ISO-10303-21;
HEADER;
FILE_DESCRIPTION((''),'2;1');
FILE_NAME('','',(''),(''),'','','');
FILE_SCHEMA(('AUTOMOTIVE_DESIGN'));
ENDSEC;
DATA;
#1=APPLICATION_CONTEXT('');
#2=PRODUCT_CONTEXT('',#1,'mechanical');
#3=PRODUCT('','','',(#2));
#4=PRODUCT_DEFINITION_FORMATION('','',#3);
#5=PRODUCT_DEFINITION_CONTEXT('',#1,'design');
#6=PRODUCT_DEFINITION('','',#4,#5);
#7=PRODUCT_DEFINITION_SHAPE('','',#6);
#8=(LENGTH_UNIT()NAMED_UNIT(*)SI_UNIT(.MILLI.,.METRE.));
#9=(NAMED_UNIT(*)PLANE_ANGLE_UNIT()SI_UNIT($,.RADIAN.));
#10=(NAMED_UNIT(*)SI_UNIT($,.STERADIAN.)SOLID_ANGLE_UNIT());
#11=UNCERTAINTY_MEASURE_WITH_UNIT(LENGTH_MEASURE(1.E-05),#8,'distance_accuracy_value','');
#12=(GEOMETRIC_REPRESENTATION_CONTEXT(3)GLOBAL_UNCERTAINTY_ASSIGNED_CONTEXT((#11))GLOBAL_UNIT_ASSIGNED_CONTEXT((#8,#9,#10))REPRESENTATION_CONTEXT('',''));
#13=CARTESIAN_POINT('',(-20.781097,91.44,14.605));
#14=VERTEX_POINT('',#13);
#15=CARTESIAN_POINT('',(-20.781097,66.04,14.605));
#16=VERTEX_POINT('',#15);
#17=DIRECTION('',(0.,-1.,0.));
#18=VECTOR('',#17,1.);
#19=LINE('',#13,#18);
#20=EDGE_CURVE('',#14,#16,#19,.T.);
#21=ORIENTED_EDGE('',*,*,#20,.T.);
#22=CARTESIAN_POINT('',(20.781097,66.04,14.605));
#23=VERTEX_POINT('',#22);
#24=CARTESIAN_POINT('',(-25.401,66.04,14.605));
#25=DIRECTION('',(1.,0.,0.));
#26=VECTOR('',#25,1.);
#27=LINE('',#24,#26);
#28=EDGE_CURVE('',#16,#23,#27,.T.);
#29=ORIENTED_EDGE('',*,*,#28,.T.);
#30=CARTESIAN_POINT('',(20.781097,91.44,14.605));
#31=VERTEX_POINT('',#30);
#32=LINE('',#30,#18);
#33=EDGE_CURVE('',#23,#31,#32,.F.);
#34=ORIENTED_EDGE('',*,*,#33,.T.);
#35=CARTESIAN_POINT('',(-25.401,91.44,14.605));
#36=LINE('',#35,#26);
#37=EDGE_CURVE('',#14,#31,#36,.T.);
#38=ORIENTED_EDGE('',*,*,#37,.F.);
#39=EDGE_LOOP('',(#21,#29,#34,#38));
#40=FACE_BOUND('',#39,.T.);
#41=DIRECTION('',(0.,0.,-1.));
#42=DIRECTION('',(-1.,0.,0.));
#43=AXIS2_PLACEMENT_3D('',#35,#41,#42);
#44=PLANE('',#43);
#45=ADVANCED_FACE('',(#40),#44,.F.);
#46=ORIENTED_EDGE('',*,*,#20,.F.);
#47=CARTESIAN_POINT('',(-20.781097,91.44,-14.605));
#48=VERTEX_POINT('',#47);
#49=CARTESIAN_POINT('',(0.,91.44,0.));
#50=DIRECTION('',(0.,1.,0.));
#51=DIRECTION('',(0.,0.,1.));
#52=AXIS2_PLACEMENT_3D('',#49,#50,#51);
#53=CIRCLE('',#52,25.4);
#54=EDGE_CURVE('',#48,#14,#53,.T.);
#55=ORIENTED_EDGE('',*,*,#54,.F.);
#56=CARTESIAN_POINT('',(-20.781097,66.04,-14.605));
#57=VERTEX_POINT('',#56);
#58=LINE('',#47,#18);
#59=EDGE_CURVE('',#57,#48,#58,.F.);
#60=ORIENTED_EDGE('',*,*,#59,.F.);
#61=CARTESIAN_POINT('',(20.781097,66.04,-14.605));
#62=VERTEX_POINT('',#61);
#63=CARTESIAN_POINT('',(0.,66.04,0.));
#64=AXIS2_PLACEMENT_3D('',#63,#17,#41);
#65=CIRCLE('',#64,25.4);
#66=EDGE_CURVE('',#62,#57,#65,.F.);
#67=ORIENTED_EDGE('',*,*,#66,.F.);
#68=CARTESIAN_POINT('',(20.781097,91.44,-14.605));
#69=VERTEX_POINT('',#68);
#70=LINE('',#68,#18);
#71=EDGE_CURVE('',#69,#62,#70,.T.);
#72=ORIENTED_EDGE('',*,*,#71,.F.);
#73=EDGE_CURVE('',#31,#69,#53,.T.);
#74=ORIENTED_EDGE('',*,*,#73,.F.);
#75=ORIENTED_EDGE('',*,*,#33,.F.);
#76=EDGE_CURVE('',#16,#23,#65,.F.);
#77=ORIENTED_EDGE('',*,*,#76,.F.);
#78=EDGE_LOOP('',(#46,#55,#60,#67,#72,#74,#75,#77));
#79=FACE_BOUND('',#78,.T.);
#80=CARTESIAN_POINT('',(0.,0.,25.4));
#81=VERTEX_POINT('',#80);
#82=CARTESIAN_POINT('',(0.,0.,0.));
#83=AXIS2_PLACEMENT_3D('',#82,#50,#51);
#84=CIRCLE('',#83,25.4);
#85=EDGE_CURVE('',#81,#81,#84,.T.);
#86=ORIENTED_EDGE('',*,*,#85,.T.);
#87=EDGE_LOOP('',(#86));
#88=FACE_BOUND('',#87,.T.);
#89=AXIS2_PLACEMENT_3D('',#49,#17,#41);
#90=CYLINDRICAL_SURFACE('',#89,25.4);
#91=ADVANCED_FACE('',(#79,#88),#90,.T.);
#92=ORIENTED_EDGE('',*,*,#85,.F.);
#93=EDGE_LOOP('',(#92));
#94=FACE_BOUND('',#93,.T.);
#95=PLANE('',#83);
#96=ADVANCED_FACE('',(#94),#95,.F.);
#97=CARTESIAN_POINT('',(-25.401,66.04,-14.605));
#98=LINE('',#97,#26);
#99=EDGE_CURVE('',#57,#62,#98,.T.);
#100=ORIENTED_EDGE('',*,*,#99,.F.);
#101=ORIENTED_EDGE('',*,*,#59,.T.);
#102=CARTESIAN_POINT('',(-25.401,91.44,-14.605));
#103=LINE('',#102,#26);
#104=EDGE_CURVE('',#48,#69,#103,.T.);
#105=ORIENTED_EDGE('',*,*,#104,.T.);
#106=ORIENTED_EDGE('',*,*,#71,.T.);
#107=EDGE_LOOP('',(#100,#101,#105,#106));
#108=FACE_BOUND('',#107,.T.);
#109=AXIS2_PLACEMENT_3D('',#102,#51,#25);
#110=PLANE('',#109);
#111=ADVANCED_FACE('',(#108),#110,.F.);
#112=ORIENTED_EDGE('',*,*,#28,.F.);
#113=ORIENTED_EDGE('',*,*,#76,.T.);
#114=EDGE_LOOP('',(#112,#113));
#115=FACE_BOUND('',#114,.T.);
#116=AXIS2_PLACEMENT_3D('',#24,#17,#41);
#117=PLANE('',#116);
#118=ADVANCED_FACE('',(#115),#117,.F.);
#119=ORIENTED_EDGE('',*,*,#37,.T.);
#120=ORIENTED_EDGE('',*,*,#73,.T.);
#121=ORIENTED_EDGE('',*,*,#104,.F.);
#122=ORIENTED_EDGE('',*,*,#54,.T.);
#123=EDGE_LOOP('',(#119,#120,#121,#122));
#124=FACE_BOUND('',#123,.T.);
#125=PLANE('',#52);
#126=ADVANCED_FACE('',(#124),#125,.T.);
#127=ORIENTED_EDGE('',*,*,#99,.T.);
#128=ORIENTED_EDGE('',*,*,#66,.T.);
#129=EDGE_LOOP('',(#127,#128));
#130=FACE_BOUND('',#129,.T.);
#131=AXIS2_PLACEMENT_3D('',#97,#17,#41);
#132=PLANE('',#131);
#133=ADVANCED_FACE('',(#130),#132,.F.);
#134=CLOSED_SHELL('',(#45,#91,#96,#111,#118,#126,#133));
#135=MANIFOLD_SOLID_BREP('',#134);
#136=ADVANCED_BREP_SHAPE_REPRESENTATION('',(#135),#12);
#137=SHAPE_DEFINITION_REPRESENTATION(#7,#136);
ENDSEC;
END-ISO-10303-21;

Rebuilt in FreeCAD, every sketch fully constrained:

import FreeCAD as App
import Part
import Sketcher
Q = App.Units.Quantity

doc = App.newDocument("Part")
body = doc.addObject("PartDesign::Body", "Body")

sketch1 = doc.addObject("Sketcher::SketchObject", "Sketch")
body.addObject(sketch1)
sketch1.AttachmentSupport = (doc.XZ_Plane, [""])
sketch1.MapMode = "FlatFace"
sketch1.addGeometry(Part.Circle(App.Vector(0, 0, 0), App.Vector(0, 0, 1), 25), False)
sketch1.addConstraint([
    Sketcher.Constraint("Coincident", 0, 3, -1, 1),
    Sketcher.Constraint("Diameter", 0, Q("2 in")),
])
pad1 = doc.addObject("PartDesign::Pad", "Pad")
body.addObject(pad1)
pad1.Profile = sketch1
pad1.Length = Q("3.6 in")
pad1.Reversed = True

sketch2 = doc.addObject("Sketcher::SketchObject", "Sketch001")
body.addObject(sketch2)
sketch2.AttachmentSupport = (doc.YZ_Plane, [""])
sketch2.MapMode = "FlatFace"
sketch2.AttachmentOffset = App.Placement(App.Vector(0, 0, 1 * 25.4), App.Rotation())
sketch2.addGeometry([
    Part.LineSegment(App.Vector(91, 25, 0), App.Vector(66, 25, 0)),
    Part.LineSegment(App.Vector(66, 25, 0), App.Vector(66, 15, 0)),
    Part.LineSegment(App.Vector(66, 15, 0), App.Vector(91, 15, 0)),
    Part.LineSegment(App.Vector(91, 15, 0), App.Vector(91, 25, 0)),
], False)
sketch2.addConstraint([
    Sketcher.Constraint("Coincident", 0, 2, 1, 1),
    Sketcher.Constraint("Coincident", 1, 2, 2, 1),
    Sketcher.Constraint("Coincident", 2, 2, 3, 1),
    Sketcher.Constraint("Coincident", 3, 2, 0, 1),
    Sketcher.Constraint("Horizontal", 0),
    Sketcher.Constraint("Vertical", 1),
    Sketcher.Constraint("Horizontal", 2),
    Sketcher.Constraint("Vertical", 3),
    Sketcher.Constraint("DistanceX", 0, 2, 0, 1, Q("1 in")),
    Sketcher.Constraint("DistanceY", -1, 1, 0, 2, Q("1 in")),
    Sketcher.Constraint("DistanceX", -1, 1, 0, 2, Q("2.6 in")),
    Sketcher.Constraint("DistanceY", 1, 2, 1, 1, Q("0.425 in")),
])
pocket1 = doc.addObject("PartDesign::Pocket", "Pocket")
body.addObject(pocket1)
pocket1.Profile = sketch2
pocket1.Type = "UpToFirst"

sketch3 = doc.addObject("Sketcher::SketchObject", "Sketch002")
body.addObject(sketch3)
sketch3.AttachmentSupport = (doc.YZ_Plane, [""])
sketch3.MapMode = "FlatFace"
sketch3.AttachmentOffset = App.Placement(App.Vector(0, 0, 1 * 25.4), App.Rotation())
sketch3.addGeometry([
    Part.LineSegment(App.Vector(91, -15, 0), App.Vector(66, -15, 0)),
    Part.LineSegment(App.Vector(66, -15, 0), App.Vector(66, -25, 0)),
    Part.LineSegment(App.Vector(66, -25, 0), App.Vector(91, -25, 0)),
    Part.LineSegment(App.Vector(91, -25, 0), App.Vector(91, -15, 0)),
], False)
sketch3.addConstraint([
    Sketcher.Constraint("Coincident", 0, 2, 1, 1),
    Sketcher.Constraint("Coincident", 1, 2, 2, 1),
    Sketcher.Constraint("Coincident", 2, 2, 3, 1),
    Sketcher.Constraint("Coincident", 3, 2, 0, 1),
    Sketcher.Constraint("Horizontal", 0),
    Sketcher.Constraint("Vertical", 1),
    Sketcher.Constraint("Horizontal", 2),
    Sketcher.Constraint("Vertical", 3),
    Sketcher.Constraint("DistanceX", 0, 2, 0, 1, Q("1 in")),
    Sketcher.Constraint("DistanceY", 1, 2, -1, 1, Q("1 in")),
    Sketcher.Constraint("DistanceX", -1, 1, 0, 2, Q("2.6 in")),
    Sketcher.Constraint("DistanceY", 1, 2, 1, 1, Q("0.425 in")),
])
pocket2 = doc.addObject("PartDesign::Pocket", "Pocket001")
body.addObject(pocket2)
pocket2.Profile = sketch3
pocket2.Type = "UpToFirst"

doc.recompute()
